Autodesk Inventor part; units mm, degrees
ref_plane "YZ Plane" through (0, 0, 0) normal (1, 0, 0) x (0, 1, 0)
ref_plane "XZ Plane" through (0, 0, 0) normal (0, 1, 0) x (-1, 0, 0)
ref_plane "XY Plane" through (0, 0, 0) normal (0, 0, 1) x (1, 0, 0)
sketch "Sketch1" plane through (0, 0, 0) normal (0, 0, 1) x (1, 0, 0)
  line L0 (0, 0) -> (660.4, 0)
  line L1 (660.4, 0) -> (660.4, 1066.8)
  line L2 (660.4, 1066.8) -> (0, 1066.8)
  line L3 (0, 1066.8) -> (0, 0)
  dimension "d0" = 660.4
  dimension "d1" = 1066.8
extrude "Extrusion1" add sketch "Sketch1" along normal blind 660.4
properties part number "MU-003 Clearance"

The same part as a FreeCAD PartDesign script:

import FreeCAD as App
import Part
import Sketcher

V = App.Vector
Q = App.Units.Quantity


def add_polygon(sketch, points):
    """Adds a closed chain of lines whose ends are joined by coincident constraints."""
    first, n = sketch.GeometryCount, len(points)
    for a, b in zip(points, points[1:] + points[:1]):
        sketch.addGeometry(Part.LineSegment(App.Vector(*a, 0), App.Vector(*b, 0)), False)
    for i in range(n):
        sketch.addConstraint(Sketcher.Constraint("Coincident", first + i, 2, first + (i + 1) % n, 1))

doc = App.newDocument("Part")
body = doc.addObject("PartDesign::Body", "Body")

sketch1 = body.newObject("Sketcher::SketchObject", "Sketch")
sketch1.AttachmentSupport = (doc.getObject("XY_Plane"), [""])
sketch1.MapMode = "FlatFace"
add_polygon(sketch1, [(0, 1067), (0, 0), (660, 0), (660, 1067)])
sketch1.addConstraint([
    Sketcher.Constraint("Vertical", 0),
    Sketcher.Constraint("Horizontal", 1),
    Sketcher.Constraint("Vertical", 2),
    Sketcher.Constraint("Horizontal", 3),
    Sketcher.Constraint("Coincident", 0, 2, -1, 1),
    Sketcher.Constraint("DistanceX", 1, 1, 1, 2, Q("26 in")),
    Sketcher.Constraint("DistanceY", 0, 2, 0, 1, Q("42 in")),
])
pad1 = body.newObject("PartDesign::Pad", "Pad")
pad1.Profile = sketch1
pad1.Length = Q("26 in")

doc.recompute()
